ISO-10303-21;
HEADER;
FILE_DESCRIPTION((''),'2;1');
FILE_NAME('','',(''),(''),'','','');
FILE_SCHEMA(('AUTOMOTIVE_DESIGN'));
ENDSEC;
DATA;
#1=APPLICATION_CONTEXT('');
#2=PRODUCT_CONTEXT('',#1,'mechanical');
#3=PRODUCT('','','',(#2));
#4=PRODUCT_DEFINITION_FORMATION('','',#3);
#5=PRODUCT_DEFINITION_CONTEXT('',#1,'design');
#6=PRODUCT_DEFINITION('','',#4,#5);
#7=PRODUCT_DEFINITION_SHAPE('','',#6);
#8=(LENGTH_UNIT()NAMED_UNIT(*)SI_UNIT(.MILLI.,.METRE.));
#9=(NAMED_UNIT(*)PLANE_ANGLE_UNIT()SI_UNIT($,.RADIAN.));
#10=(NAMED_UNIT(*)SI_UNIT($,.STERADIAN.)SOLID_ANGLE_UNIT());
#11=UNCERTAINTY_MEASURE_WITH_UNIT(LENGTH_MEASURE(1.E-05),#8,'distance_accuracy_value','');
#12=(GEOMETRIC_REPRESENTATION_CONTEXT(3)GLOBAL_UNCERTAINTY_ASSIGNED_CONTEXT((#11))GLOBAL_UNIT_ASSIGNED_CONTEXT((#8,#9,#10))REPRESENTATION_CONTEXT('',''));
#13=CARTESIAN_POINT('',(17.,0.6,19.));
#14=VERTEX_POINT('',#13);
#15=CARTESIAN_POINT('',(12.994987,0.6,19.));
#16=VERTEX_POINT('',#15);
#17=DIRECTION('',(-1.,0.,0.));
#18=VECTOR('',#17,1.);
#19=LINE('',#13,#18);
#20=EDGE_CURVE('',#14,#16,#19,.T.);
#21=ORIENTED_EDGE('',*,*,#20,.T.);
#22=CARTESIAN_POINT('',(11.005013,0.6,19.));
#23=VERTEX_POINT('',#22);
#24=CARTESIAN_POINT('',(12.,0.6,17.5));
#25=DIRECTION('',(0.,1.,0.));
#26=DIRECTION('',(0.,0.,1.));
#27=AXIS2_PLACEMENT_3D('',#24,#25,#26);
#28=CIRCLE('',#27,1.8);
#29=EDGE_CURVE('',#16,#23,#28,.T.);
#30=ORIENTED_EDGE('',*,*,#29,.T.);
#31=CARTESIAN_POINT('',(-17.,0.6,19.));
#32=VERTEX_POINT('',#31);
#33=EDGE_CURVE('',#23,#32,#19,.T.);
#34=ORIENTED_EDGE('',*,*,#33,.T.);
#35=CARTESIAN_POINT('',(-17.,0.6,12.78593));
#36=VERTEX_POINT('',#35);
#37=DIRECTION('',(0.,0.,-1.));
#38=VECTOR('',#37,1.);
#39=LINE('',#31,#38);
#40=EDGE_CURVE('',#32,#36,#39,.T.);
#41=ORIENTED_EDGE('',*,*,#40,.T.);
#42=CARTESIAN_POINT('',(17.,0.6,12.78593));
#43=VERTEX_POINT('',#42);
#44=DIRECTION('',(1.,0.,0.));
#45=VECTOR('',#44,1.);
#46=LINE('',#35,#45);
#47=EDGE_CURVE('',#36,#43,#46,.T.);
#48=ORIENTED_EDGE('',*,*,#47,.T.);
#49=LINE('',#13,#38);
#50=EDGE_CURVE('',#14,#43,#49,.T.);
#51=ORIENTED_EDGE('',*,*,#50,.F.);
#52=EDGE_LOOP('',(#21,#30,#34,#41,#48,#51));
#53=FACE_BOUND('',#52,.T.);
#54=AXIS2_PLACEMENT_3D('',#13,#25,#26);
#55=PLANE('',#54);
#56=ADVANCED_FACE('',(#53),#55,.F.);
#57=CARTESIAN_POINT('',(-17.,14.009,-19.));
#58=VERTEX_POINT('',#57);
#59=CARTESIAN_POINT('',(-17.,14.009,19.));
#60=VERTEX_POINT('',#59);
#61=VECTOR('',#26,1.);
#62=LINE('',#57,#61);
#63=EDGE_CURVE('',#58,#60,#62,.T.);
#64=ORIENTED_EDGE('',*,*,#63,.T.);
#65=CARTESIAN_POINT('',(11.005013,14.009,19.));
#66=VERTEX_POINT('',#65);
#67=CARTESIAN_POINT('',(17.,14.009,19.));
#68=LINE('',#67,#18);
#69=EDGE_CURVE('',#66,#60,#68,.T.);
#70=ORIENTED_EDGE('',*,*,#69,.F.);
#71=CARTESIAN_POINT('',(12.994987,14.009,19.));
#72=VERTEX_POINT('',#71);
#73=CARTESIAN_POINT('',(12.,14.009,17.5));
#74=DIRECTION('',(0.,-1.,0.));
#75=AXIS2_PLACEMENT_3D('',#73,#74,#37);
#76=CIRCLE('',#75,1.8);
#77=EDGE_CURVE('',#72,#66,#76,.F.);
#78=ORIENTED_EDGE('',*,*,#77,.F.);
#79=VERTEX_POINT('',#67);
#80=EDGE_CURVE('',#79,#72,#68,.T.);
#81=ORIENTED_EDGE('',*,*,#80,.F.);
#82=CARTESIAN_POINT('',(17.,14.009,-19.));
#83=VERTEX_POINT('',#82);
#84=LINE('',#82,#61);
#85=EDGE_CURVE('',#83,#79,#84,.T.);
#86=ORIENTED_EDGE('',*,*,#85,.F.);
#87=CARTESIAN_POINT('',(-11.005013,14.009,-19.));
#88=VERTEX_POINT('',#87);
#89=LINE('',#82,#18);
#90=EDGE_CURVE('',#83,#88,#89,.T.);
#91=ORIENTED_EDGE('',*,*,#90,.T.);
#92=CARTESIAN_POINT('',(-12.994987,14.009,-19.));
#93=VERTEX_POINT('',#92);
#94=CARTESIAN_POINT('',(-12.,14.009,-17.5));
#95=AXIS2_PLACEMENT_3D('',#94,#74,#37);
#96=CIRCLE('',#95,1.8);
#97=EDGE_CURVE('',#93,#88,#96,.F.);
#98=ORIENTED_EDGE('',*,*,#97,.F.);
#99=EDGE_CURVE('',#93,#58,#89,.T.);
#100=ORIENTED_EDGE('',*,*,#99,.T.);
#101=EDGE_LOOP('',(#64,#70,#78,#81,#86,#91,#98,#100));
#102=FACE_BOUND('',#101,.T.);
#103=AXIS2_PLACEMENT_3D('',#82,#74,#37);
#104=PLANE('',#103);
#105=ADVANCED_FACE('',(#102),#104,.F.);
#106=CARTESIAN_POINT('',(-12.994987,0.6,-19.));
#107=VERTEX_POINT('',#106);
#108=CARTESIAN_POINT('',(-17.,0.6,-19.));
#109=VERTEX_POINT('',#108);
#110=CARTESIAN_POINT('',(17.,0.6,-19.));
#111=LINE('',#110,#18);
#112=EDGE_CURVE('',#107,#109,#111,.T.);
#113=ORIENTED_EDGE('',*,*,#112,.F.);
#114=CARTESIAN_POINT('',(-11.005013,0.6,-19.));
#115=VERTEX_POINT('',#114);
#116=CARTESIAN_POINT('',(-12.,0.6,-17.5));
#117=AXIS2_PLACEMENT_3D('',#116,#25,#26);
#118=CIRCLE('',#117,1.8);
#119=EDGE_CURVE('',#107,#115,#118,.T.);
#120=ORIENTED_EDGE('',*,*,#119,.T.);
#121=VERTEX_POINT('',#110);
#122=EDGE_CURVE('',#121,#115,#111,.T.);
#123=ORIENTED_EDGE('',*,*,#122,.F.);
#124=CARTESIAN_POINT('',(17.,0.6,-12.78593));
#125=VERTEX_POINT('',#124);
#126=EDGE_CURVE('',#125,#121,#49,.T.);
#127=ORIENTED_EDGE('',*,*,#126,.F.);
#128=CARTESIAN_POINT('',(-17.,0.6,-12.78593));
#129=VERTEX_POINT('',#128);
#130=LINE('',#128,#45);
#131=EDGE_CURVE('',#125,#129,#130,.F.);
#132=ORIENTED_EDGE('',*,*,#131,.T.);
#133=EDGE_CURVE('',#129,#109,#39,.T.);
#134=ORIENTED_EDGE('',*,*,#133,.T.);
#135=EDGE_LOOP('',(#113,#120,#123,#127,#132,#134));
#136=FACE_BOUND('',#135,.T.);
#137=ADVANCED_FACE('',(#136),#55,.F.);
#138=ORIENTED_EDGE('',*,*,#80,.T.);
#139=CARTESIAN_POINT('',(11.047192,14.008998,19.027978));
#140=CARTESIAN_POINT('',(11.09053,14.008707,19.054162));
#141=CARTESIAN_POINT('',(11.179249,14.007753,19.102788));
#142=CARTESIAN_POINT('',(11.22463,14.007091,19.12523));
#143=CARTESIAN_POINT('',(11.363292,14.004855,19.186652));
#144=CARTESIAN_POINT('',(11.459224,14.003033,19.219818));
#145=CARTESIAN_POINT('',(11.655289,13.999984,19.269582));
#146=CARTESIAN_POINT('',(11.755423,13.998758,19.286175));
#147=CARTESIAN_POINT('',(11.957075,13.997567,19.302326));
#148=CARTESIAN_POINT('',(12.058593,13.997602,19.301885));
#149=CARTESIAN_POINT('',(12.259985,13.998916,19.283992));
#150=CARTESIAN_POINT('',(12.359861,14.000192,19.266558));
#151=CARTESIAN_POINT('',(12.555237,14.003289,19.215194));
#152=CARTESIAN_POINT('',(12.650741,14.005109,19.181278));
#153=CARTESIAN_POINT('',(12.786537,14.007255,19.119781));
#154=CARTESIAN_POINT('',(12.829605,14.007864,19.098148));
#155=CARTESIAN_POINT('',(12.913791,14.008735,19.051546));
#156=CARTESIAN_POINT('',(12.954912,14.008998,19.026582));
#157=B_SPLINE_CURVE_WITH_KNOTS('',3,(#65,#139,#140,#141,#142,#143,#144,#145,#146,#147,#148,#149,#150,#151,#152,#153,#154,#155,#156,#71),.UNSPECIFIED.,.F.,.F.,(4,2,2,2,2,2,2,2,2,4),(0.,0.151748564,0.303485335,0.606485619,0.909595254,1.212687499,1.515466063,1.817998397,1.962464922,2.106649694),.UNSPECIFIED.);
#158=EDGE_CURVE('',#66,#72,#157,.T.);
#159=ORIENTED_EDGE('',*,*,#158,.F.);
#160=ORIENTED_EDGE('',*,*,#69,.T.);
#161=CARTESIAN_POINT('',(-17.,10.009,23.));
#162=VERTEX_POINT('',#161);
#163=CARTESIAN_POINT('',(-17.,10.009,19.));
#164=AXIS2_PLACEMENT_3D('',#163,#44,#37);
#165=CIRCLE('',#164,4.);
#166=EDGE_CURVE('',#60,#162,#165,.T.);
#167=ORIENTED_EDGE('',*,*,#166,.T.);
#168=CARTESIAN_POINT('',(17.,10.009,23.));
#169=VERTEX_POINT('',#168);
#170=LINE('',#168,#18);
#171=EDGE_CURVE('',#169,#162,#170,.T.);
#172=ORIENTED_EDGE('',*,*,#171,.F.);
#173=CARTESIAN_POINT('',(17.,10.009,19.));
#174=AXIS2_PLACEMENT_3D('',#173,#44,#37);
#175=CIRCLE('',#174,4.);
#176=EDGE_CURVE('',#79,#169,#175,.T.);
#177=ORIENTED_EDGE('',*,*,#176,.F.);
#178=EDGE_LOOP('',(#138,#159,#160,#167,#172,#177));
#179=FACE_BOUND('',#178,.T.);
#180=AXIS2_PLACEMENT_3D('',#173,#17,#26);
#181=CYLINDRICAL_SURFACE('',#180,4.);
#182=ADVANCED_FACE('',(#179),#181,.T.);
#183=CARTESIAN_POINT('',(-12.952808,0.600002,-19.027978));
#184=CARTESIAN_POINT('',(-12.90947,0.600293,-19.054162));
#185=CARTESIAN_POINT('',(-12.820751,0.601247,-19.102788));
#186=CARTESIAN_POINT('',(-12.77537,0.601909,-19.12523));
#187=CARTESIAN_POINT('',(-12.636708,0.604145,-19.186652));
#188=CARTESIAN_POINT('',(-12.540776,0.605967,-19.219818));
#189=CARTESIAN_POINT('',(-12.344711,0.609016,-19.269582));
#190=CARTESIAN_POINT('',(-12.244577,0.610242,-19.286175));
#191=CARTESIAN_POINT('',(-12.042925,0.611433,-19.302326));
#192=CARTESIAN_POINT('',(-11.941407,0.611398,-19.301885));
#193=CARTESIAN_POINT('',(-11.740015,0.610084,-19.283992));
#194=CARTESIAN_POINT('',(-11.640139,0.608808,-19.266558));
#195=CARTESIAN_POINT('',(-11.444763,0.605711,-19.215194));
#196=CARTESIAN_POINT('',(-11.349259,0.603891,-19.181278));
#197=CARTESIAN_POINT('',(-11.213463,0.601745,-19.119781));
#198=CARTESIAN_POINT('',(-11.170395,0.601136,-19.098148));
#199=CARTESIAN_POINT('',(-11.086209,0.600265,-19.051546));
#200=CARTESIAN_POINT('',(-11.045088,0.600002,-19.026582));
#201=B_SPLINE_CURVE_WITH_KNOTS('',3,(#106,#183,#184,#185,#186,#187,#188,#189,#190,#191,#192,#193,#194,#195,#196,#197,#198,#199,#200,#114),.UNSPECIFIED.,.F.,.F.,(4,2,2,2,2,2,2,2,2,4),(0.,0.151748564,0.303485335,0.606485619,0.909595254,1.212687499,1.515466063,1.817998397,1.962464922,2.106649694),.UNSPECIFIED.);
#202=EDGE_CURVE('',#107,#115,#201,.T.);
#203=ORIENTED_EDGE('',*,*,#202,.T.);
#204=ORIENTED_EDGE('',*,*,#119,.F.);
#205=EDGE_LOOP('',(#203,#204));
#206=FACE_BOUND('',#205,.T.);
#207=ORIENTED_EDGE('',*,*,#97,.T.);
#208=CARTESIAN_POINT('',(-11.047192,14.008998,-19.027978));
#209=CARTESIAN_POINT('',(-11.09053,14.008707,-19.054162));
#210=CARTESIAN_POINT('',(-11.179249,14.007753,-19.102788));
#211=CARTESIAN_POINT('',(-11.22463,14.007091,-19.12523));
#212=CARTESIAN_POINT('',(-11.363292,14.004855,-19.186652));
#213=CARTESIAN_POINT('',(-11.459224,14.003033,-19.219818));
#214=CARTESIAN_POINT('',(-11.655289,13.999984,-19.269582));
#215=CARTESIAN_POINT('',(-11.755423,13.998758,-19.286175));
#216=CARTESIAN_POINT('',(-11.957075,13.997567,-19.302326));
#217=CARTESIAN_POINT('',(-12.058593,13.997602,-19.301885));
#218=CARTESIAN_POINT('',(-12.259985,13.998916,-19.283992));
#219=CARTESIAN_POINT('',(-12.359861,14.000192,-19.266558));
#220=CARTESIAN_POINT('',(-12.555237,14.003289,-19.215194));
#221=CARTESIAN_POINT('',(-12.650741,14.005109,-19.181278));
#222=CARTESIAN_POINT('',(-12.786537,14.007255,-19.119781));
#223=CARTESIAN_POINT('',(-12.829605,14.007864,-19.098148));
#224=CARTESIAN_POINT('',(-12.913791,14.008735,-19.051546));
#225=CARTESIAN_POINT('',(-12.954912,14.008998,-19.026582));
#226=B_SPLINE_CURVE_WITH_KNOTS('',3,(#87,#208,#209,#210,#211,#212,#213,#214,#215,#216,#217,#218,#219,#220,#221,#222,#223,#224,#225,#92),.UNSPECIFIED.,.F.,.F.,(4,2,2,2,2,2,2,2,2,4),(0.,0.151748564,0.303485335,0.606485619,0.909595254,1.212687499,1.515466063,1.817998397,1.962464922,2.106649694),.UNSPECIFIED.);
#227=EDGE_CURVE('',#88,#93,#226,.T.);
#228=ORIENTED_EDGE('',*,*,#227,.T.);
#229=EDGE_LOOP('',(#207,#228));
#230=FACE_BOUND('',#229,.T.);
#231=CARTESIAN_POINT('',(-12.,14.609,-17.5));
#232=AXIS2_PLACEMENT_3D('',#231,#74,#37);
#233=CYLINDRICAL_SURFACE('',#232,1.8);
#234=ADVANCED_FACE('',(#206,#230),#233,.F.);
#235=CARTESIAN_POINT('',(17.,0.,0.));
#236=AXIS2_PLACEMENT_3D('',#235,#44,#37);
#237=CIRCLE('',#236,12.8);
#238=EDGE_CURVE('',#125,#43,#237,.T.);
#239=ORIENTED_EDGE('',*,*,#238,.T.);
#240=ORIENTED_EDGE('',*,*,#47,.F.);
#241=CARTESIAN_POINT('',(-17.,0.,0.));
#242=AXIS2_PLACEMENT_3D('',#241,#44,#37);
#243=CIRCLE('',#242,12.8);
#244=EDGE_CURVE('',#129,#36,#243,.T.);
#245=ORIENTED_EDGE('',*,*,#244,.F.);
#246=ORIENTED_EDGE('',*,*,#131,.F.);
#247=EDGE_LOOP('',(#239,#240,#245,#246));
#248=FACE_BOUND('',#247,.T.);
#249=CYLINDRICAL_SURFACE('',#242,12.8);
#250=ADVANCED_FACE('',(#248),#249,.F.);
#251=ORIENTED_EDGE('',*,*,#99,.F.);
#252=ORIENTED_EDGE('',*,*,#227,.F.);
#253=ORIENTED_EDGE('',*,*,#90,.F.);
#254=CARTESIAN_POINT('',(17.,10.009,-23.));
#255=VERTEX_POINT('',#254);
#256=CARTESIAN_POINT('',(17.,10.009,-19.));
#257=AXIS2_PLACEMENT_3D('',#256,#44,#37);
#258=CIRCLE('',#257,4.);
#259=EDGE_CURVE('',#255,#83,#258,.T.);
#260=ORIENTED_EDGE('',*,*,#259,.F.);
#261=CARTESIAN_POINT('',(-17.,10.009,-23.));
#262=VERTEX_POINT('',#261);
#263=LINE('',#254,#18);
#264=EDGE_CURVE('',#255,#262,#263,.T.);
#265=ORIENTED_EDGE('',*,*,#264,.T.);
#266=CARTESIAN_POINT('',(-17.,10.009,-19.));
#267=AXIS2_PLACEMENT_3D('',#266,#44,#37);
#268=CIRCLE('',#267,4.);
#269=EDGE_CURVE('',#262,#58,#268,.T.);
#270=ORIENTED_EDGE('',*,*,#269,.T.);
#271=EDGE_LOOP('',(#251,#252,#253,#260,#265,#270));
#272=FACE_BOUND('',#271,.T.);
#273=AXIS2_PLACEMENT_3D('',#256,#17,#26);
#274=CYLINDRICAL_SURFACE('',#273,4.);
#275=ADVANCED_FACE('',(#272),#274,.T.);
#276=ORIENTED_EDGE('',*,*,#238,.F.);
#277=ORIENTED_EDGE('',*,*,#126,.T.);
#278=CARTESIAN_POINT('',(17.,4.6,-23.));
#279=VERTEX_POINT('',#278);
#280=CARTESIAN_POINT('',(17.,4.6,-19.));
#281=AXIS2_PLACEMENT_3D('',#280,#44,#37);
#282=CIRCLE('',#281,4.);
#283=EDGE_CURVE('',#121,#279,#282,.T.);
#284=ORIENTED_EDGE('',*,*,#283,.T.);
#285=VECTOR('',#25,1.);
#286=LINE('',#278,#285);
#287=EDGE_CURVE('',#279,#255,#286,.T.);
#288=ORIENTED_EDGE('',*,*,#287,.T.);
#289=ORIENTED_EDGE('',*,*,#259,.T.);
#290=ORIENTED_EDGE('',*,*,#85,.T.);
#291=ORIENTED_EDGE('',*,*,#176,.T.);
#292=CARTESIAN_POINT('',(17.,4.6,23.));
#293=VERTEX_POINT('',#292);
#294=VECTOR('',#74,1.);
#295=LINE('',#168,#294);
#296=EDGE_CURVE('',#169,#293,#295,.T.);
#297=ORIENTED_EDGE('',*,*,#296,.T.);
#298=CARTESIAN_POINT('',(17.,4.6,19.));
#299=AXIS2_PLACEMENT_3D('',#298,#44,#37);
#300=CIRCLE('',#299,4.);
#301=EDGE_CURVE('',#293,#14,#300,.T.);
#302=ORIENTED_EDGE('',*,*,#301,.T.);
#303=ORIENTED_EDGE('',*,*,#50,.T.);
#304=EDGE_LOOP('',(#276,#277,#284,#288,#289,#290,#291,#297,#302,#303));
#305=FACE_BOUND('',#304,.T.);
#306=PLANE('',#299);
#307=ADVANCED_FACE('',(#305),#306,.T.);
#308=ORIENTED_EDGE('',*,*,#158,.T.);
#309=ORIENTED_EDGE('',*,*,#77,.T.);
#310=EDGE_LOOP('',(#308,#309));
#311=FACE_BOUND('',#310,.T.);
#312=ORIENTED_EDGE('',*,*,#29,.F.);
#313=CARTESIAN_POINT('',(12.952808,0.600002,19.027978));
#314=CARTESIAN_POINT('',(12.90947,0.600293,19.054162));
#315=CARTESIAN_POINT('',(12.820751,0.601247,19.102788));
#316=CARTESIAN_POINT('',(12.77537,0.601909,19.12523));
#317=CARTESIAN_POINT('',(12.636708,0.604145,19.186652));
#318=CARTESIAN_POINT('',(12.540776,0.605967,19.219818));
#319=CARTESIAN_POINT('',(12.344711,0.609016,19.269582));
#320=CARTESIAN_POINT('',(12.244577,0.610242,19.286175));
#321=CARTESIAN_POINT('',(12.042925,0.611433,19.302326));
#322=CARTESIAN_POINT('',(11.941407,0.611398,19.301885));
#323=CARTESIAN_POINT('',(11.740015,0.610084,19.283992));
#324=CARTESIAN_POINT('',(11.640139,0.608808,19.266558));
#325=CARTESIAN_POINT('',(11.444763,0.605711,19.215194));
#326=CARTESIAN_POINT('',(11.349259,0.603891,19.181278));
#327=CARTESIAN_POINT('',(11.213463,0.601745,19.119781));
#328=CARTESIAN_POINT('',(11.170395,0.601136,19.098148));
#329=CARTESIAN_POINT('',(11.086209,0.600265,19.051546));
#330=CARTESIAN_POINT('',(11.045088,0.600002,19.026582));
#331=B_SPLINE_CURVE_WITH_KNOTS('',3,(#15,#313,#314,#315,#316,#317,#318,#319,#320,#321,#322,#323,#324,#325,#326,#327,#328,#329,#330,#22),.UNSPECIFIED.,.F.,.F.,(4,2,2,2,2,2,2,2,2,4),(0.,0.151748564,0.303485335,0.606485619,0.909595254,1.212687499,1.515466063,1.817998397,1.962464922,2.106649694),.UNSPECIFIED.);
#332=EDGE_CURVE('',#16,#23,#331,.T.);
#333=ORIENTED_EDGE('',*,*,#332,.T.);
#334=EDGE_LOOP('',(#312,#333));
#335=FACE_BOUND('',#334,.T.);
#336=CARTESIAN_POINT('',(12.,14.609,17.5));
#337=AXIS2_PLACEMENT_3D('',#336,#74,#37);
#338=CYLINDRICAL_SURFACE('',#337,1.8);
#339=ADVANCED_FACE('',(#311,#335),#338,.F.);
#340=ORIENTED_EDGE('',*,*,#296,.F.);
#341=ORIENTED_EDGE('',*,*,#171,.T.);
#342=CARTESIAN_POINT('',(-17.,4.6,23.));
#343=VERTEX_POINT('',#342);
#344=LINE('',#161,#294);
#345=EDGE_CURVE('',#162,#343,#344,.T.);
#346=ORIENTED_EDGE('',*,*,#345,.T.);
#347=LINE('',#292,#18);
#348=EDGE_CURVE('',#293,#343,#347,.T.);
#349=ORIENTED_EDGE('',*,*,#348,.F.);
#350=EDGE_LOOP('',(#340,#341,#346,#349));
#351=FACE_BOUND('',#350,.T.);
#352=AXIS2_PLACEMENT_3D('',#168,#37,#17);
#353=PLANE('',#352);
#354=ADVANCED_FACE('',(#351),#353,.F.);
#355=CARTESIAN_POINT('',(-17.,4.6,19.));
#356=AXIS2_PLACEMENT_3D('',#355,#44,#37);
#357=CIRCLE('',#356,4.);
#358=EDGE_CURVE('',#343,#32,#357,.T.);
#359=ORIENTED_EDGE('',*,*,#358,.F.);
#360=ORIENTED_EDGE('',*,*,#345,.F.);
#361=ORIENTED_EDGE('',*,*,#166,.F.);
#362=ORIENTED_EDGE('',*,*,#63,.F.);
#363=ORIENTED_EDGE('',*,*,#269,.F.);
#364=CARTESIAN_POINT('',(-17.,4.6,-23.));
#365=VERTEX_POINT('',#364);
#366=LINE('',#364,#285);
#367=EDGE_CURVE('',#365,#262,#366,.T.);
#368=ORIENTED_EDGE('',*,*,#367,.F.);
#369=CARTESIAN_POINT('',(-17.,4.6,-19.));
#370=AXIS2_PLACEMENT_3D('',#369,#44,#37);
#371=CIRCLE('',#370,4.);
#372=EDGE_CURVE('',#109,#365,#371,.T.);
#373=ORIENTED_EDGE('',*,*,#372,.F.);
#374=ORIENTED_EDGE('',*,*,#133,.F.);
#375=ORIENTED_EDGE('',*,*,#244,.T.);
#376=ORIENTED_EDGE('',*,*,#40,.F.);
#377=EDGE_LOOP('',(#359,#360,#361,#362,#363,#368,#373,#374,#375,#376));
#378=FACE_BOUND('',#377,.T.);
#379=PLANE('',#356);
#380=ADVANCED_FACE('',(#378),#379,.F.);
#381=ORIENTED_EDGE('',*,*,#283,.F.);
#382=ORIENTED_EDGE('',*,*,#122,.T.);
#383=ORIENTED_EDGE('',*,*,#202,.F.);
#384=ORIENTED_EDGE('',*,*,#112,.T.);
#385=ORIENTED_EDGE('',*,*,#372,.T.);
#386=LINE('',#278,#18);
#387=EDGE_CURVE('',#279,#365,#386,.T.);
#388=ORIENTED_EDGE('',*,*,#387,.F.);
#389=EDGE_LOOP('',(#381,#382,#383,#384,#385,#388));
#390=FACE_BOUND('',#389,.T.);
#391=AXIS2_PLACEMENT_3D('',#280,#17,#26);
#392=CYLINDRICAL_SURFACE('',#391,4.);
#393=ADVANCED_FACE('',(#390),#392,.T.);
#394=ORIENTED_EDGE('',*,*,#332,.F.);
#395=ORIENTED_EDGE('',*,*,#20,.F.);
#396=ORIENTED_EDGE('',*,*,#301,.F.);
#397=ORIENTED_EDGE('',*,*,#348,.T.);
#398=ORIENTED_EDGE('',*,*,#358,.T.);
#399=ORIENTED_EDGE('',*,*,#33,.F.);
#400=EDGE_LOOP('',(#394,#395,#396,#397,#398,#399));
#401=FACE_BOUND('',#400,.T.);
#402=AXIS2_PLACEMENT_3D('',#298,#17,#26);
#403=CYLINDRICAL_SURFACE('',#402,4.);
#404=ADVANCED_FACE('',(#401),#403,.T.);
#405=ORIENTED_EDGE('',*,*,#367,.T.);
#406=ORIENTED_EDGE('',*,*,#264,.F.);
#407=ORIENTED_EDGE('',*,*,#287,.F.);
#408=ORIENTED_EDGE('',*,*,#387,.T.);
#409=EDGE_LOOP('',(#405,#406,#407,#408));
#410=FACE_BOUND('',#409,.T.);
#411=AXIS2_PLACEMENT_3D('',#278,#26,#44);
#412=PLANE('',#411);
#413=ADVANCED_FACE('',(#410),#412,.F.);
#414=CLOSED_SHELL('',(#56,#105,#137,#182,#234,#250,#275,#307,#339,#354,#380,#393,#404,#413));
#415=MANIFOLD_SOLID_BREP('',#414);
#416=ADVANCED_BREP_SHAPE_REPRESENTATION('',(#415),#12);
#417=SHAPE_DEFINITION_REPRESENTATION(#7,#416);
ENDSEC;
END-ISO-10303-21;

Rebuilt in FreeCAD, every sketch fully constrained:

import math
import FreeCAD as App
import Part
import Sketcher
from FreeCAD import Vector

doc = App.newDocument("Part")
body = doc.addObject("PartDesign::Body", "Body")

# Sketch on YZ plane
sketch1 = doc.addObject("Sketcher::SketchObject", "Sketch")
body.addObject(sketch1)
sketch1.AttachmentSupport = (doc.YZ_Plane, [""])
sketch1.MapMode = "FlatFace"
sketch1.addGeometry([
    Part.LineSegment(Vector(0.6, 19, 0), Vector(0.6, -19, 0)),  # 0
    Part.ArcOfCircle(Part.Circle(Vector(4.6, -19, 0), Vector(0, 0, 1), 4), math.radians(180), math.radians(270)),  # 1
    Part.LineSegment(Vector(4.6, -23, 0), Vector(10.009, -23, 0)),  # 2
    Part.ArcOfCircle(Part.Circle(Vector(10.009, -19, 0), Vector(0, 0, 1), 4), math.radians(-90), math.radians(0)),  # 3
    Part.LineSegment(Vector(14.009, -19, 0), Vector(14.009, 19, 0)),  # 4
    Part.ArcOfCircle(Part.Circle(Vector(10.009, 19, 0), Vector(0, 0, 1), 4), math.radians(0), math.radians(90)),  # 5
    Part.LineSegment(Vector(10.009, 23, 0), Vector(4.6, 23, 0)),  # 6
    Part.ArcOfCircle(Part.Circle(Vector(4.6, 19, 0), Vector(0, 0, 1), 4), math.radians(90), math.radians(180)),  # 7
], False)
sketch1.addConstraint([
    Sketcher.Constraint("Tangent", 0, 2, 1, 1),
    Sketcher.Constraint("Tangent", 1, 2, 2, 1),
    Sketcher.Constraint("Tangent", 2, 2, 3, 1),
    Sketcher.Constraint("Tangent", 3, 2, 4, 1),
    Sketcher.Constraint("Tangent", 4, 2, 5, 1),
    Sketcher.Constraint("Tangent", 5, 2, 6, 1),
    Sketcher.Constraint("Tangent", 6, 2, 7, 1),
    Sketcher.Constraint("Tangent", 7, 2, 0, 1),
    Sketcher.Constraint("Vertical", 0),
    Sketcher.Constraint("Horizontal", 2),
    Sketcher.Constraint("Vertical", 4),
    Sketcher.Constraint("Horizontal", 6),
    Sketcher.Constraint("Equal", 1, 3),
    Sketcher.Constraint("Equal", 3, 5),
    Sketcher.Constraint("Equal", 5, 7),
    Sketcher.Constraint("Radius", 1, 4.0),
    Sketcher.Constraint("DistanceY", 0, 2, 0, 1, 38.0),
    Sketcher.Constraint("DistanceY", 1, 3, -1, 1, 19.0),
    Sketcher.Constraint("DistanceX", -1, 1, 1, 3, 4.6),
    Sketcher.Constraint("DistanceX", 2, 1, 2, 2, 5.409),
])
pad1 = doc.addObject("PartDesign::Pad", "Pad")
body.addObject(pad1)
pad1.Profile = sketch1
pad1.Length = 34
pad1.Midplane = True

# Sketch on YZ plane
sketch2 = doc.addObject("Sketcher::SketchObject", "Sketch001")
body.addObject(sketch2)
sketch2.AttachmentSupport = (doc.YZ_Plane, [""])
sketch2.MapMode = "FlatFace"
sketch2.addGeometry(Part.Circle(Vector(0, 0, 0), Vector(0, 0, 1), 12.8), False)
sketch2.addConstraint([
    Sketcher.Constraint("Coincident", 0, 3, -1, 1),
    Sketcher.Constraint("Diameter", 0, 25.6),
])
pocket1 = doc.addObject("PartDesign::Pocket", "Pocket")
body.addObject(pocket1)
pocket1.Profile = sketch2
pocket1.Type = "ThroughAll"
pocket1.Midplane = True

# Sketch on XZ plane
sketch3 = doc.addObject("Sketcher::SketchObject", "Sketch002")
body.addObject(sketch3)
sketch3.AttachmentSupport = (doc.XZ_Plane, [""])
sketch3.MapMode = "FlatFace"
sketch3.AttachmentOffset = App.Placement(Vector(0, 0, -0.6), App.Rotation())
sketch3.addGeometry([
    Part.Circle(Vector(12, 17.5, 0), Vector(0, 0, 1), 1.8),
    Part.Circle(Vector(-12, -17.5, 0), Vector(0, 0, 1), 1.8),
], False)
sketch3.addConstraint([
    Sketcher.Constraint("Equal", 0, 1),
    Sketcher.Constraint("Symmetric", 0, 3, 1, 3, -1, 1),
    Sketcher.Constraint("Diameter", 0, 3.6),
    Sketcher.Constraint("DistanceX", -1, 1, 0, 3, 12.0),
    Sketcher.Constraint("DistanceY", 1, 3, 0, 3, 35.0),
])
pocket2 = doc.addObject("PartDesign::Pocket", "Pocket001")
body.addObject(pocket2)
pocket2.Profile = sketch3
pocket2.Length = 14.009

doc.recompute()
